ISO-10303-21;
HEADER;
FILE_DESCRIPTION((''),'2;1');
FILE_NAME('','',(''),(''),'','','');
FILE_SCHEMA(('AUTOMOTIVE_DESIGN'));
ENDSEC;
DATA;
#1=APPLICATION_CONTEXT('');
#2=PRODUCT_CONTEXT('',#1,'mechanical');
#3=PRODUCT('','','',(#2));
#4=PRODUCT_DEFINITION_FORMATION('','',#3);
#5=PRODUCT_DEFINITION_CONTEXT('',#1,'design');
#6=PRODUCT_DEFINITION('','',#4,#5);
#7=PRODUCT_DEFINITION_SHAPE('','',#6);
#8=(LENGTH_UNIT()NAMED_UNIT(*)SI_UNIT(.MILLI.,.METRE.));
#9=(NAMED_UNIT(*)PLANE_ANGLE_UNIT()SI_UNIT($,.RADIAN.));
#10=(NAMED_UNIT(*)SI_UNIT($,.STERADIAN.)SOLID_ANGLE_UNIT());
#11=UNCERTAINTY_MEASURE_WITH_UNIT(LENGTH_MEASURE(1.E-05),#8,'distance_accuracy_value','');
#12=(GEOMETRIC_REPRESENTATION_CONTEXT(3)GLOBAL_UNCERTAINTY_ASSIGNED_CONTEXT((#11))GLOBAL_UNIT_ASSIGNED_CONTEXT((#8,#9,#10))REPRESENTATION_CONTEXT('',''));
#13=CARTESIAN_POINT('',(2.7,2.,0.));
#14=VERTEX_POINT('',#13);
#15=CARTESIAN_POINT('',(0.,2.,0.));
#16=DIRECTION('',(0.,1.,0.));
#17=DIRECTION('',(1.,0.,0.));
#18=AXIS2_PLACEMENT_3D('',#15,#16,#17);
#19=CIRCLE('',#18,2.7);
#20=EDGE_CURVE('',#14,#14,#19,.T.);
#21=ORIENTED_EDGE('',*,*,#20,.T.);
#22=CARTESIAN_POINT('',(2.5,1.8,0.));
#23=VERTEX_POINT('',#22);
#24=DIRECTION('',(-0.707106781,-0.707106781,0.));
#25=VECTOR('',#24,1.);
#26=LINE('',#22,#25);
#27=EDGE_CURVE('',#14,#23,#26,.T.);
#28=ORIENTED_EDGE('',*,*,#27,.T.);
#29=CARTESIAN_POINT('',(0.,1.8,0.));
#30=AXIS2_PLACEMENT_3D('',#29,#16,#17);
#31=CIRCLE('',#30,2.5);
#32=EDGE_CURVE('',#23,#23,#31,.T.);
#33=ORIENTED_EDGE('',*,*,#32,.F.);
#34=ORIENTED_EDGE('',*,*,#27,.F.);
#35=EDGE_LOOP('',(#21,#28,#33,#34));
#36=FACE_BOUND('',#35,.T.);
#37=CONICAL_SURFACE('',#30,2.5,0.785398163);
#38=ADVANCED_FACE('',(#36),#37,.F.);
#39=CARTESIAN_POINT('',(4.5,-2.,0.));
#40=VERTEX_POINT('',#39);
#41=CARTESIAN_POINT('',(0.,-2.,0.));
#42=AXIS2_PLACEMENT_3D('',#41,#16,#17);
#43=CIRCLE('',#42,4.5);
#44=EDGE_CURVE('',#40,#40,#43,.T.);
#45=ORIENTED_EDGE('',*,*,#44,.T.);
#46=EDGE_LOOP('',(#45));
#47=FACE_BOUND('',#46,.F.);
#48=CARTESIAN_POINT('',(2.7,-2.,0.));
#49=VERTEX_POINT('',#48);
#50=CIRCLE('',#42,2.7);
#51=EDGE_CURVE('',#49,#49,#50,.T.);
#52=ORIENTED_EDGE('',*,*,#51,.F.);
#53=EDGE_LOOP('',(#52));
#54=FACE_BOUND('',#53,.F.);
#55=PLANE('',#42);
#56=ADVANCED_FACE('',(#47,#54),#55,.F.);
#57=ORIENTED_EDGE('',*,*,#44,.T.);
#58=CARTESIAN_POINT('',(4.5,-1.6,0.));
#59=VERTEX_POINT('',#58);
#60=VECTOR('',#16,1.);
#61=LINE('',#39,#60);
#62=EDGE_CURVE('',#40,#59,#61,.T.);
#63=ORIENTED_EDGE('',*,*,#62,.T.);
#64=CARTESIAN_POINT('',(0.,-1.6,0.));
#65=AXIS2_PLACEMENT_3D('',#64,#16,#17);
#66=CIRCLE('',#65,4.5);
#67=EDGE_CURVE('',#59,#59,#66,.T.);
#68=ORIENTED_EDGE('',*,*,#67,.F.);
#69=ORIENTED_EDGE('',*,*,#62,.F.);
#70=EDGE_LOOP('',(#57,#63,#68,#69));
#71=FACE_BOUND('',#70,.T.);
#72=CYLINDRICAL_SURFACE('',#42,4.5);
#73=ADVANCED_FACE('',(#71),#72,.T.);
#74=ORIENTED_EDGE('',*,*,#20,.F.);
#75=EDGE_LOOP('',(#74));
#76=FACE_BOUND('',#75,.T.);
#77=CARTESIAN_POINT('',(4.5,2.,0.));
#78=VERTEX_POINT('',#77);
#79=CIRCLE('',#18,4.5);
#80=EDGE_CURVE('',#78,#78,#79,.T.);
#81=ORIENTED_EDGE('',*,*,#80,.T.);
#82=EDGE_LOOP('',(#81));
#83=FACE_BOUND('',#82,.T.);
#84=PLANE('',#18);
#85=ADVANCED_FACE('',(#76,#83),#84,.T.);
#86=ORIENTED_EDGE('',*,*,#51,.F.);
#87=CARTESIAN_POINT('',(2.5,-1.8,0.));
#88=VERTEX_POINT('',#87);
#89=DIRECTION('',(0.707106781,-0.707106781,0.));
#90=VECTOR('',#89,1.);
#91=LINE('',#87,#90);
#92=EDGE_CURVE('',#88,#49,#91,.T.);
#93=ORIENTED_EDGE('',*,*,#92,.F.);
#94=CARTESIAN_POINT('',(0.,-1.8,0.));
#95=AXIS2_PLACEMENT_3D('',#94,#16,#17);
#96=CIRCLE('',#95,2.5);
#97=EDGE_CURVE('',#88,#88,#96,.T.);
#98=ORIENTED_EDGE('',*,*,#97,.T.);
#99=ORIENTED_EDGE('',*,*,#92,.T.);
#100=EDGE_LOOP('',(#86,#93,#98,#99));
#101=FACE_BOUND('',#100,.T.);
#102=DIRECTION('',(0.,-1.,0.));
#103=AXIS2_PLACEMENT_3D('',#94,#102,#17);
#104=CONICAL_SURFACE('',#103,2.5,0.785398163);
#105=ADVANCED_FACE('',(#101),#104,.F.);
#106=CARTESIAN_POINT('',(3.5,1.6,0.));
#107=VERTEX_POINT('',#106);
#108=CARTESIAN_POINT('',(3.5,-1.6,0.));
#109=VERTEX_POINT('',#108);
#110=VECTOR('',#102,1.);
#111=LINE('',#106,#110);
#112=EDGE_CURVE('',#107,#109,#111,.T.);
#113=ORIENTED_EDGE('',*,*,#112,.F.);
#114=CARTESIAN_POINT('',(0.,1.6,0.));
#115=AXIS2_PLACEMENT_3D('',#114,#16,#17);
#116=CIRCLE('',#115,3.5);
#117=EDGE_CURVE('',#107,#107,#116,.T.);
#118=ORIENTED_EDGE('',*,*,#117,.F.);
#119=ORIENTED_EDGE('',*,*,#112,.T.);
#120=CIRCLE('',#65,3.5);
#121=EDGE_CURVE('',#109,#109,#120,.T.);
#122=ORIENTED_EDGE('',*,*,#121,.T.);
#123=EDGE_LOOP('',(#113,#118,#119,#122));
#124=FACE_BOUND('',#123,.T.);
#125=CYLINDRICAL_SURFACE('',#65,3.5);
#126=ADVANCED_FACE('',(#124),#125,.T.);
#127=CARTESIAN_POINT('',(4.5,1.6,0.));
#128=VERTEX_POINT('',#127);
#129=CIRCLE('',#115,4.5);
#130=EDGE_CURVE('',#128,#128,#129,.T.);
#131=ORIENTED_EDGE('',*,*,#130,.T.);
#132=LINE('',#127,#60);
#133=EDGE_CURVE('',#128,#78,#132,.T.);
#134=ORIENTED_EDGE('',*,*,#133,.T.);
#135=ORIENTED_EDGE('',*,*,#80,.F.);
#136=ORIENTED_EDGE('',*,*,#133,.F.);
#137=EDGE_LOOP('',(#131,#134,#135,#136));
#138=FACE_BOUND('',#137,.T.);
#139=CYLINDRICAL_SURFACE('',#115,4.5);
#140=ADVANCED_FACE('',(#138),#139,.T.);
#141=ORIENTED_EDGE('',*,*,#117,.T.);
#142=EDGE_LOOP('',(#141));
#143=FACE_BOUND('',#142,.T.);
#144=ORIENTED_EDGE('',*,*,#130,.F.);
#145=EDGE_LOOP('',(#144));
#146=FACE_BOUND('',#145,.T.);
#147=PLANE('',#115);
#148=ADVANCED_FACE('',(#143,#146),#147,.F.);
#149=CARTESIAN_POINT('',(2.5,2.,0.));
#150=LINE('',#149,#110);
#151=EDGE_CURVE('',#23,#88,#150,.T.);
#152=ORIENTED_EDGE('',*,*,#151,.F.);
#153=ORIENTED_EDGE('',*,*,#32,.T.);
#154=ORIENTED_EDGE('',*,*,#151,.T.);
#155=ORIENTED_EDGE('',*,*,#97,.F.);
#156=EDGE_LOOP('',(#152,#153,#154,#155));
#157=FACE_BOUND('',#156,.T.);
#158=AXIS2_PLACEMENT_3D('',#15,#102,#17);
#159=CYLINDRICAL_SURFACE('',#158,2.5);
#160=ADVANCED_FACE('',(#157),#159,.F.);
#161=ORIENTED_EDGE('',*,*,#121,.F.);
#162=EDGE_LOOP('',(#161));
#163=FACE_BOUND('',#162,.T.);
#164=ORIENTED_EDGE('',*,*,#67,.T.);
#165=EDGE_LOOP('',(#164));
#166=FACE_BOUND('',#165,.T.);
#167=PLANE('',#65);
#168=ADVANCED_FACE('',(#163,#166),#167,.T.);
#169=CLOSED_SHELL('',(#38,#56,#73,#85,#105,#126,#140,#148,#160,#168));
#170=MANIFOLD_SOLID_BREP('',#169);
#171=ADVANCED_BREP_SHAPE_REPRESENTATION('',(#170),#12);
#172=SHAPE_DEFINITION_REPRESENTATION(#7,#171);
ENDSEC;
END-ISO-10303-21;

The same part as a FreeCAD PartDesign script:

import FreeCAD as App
import Part
import Sketcher

V = App.Vector
Q = App.Units.Quantity


def edges_at(feature, points):
    """Names of the edges that pass closest to the given points."""
    edges = feature.Shape.Edges
    near = lambda p: min(range(len(edges)), key=lambda i: edges[i].distToShape(Part.Vertex(*p))[0])
    return sorted({f"Edge{near(p) + 1}" for p in points})


def add_polygon(sketch, points):
    """Adds a closed chain of lines whose ends are joined by coincident constraints."""
    first, n = sketch.GeometryCount, len(points)
    for a, b in zip(points, points[1:] + points[:1]):
        sketch.addGeometry(Part.LineSegment(App.Vector(*a, 0), App.Vector(*b, 0)), False)
    for i in range(n):
        sketch.addConstraint(Sketcher.Constraint("Coincident", first + i, 2, first + (i + 1) % n, 1))

doc = App.newDocument("Part")
body = doc.addObject("PartDesign::Body", "Body")

sketch1 = body.newObject("Sketcher::SketchObject", "Sketch")
sketch1.AttachmentSupport = (doc.getObject("XY_Plane"), [""])
sketch1.MapMode = "FlatFace"
add_polygon(sketch1, [(4.5, 2), (2.5, 2), (2.5, -2), (4.5, -2), (4.5, -1.6), (3.5, -1.6), (3.5, 1.6), (4.5, 1.6)])
sketch1.addConstraint([
    Sketcher.Constraint("Horizontal", 0),
    Sketcher.Constraint("Vertical", 1),
    Sketcher.Constraint("Horizontal", 2),
    Sketcher.Constraint("Vertical", 3),
    Sketcher.Constraint("Horizontal", 4),
    Sketcher.Constraint("Vertical", 5),
    Sketcher.Constraint("Horizontal", 6),
    Sketcher.Constraint("Vertical", 7),
    Sketcher.Constraint("Symmetric", 3, 2, 6, 2, -1),
    Sketcher.Constraint("Equal", 3, 7),
    Sketcher.Constraint("DistanceX", 4, 2, 4, 1, Q("1 mm")),
    Sketcher.Constraint("DistanceY", 1, 2, 1, 1, Q("4 mm")),
    Sketcher.Constraint("DistanceY", 5, 1, 5, 2, Q("3.2 mm")),
    Sketcher.Constraint("DistanceX", 1, 2, 4, 2, Q("1 mm")),
    Sketcher.Constraint("DistanceX", -1, 1, 0, 2, Q("2.5 mm")),
])
revolution = body.newObject("PartDesign::Revolution", "Revolution")
revolution.Profile = sketch1
revolution.ReferenceAxis = (sketch1, ["V_Axis"])
revolution.Angle = 360
doc.recompute()

chamfer = body.newObject("PartDesign::Chamfer", "Chamfer")
chamfer.Base = (revolution, edges_at(revolution, [(-2.5, 2, 0), (-2.5, -2, 0)]))
chamfer.Size = 0.2

doc.recompute()
